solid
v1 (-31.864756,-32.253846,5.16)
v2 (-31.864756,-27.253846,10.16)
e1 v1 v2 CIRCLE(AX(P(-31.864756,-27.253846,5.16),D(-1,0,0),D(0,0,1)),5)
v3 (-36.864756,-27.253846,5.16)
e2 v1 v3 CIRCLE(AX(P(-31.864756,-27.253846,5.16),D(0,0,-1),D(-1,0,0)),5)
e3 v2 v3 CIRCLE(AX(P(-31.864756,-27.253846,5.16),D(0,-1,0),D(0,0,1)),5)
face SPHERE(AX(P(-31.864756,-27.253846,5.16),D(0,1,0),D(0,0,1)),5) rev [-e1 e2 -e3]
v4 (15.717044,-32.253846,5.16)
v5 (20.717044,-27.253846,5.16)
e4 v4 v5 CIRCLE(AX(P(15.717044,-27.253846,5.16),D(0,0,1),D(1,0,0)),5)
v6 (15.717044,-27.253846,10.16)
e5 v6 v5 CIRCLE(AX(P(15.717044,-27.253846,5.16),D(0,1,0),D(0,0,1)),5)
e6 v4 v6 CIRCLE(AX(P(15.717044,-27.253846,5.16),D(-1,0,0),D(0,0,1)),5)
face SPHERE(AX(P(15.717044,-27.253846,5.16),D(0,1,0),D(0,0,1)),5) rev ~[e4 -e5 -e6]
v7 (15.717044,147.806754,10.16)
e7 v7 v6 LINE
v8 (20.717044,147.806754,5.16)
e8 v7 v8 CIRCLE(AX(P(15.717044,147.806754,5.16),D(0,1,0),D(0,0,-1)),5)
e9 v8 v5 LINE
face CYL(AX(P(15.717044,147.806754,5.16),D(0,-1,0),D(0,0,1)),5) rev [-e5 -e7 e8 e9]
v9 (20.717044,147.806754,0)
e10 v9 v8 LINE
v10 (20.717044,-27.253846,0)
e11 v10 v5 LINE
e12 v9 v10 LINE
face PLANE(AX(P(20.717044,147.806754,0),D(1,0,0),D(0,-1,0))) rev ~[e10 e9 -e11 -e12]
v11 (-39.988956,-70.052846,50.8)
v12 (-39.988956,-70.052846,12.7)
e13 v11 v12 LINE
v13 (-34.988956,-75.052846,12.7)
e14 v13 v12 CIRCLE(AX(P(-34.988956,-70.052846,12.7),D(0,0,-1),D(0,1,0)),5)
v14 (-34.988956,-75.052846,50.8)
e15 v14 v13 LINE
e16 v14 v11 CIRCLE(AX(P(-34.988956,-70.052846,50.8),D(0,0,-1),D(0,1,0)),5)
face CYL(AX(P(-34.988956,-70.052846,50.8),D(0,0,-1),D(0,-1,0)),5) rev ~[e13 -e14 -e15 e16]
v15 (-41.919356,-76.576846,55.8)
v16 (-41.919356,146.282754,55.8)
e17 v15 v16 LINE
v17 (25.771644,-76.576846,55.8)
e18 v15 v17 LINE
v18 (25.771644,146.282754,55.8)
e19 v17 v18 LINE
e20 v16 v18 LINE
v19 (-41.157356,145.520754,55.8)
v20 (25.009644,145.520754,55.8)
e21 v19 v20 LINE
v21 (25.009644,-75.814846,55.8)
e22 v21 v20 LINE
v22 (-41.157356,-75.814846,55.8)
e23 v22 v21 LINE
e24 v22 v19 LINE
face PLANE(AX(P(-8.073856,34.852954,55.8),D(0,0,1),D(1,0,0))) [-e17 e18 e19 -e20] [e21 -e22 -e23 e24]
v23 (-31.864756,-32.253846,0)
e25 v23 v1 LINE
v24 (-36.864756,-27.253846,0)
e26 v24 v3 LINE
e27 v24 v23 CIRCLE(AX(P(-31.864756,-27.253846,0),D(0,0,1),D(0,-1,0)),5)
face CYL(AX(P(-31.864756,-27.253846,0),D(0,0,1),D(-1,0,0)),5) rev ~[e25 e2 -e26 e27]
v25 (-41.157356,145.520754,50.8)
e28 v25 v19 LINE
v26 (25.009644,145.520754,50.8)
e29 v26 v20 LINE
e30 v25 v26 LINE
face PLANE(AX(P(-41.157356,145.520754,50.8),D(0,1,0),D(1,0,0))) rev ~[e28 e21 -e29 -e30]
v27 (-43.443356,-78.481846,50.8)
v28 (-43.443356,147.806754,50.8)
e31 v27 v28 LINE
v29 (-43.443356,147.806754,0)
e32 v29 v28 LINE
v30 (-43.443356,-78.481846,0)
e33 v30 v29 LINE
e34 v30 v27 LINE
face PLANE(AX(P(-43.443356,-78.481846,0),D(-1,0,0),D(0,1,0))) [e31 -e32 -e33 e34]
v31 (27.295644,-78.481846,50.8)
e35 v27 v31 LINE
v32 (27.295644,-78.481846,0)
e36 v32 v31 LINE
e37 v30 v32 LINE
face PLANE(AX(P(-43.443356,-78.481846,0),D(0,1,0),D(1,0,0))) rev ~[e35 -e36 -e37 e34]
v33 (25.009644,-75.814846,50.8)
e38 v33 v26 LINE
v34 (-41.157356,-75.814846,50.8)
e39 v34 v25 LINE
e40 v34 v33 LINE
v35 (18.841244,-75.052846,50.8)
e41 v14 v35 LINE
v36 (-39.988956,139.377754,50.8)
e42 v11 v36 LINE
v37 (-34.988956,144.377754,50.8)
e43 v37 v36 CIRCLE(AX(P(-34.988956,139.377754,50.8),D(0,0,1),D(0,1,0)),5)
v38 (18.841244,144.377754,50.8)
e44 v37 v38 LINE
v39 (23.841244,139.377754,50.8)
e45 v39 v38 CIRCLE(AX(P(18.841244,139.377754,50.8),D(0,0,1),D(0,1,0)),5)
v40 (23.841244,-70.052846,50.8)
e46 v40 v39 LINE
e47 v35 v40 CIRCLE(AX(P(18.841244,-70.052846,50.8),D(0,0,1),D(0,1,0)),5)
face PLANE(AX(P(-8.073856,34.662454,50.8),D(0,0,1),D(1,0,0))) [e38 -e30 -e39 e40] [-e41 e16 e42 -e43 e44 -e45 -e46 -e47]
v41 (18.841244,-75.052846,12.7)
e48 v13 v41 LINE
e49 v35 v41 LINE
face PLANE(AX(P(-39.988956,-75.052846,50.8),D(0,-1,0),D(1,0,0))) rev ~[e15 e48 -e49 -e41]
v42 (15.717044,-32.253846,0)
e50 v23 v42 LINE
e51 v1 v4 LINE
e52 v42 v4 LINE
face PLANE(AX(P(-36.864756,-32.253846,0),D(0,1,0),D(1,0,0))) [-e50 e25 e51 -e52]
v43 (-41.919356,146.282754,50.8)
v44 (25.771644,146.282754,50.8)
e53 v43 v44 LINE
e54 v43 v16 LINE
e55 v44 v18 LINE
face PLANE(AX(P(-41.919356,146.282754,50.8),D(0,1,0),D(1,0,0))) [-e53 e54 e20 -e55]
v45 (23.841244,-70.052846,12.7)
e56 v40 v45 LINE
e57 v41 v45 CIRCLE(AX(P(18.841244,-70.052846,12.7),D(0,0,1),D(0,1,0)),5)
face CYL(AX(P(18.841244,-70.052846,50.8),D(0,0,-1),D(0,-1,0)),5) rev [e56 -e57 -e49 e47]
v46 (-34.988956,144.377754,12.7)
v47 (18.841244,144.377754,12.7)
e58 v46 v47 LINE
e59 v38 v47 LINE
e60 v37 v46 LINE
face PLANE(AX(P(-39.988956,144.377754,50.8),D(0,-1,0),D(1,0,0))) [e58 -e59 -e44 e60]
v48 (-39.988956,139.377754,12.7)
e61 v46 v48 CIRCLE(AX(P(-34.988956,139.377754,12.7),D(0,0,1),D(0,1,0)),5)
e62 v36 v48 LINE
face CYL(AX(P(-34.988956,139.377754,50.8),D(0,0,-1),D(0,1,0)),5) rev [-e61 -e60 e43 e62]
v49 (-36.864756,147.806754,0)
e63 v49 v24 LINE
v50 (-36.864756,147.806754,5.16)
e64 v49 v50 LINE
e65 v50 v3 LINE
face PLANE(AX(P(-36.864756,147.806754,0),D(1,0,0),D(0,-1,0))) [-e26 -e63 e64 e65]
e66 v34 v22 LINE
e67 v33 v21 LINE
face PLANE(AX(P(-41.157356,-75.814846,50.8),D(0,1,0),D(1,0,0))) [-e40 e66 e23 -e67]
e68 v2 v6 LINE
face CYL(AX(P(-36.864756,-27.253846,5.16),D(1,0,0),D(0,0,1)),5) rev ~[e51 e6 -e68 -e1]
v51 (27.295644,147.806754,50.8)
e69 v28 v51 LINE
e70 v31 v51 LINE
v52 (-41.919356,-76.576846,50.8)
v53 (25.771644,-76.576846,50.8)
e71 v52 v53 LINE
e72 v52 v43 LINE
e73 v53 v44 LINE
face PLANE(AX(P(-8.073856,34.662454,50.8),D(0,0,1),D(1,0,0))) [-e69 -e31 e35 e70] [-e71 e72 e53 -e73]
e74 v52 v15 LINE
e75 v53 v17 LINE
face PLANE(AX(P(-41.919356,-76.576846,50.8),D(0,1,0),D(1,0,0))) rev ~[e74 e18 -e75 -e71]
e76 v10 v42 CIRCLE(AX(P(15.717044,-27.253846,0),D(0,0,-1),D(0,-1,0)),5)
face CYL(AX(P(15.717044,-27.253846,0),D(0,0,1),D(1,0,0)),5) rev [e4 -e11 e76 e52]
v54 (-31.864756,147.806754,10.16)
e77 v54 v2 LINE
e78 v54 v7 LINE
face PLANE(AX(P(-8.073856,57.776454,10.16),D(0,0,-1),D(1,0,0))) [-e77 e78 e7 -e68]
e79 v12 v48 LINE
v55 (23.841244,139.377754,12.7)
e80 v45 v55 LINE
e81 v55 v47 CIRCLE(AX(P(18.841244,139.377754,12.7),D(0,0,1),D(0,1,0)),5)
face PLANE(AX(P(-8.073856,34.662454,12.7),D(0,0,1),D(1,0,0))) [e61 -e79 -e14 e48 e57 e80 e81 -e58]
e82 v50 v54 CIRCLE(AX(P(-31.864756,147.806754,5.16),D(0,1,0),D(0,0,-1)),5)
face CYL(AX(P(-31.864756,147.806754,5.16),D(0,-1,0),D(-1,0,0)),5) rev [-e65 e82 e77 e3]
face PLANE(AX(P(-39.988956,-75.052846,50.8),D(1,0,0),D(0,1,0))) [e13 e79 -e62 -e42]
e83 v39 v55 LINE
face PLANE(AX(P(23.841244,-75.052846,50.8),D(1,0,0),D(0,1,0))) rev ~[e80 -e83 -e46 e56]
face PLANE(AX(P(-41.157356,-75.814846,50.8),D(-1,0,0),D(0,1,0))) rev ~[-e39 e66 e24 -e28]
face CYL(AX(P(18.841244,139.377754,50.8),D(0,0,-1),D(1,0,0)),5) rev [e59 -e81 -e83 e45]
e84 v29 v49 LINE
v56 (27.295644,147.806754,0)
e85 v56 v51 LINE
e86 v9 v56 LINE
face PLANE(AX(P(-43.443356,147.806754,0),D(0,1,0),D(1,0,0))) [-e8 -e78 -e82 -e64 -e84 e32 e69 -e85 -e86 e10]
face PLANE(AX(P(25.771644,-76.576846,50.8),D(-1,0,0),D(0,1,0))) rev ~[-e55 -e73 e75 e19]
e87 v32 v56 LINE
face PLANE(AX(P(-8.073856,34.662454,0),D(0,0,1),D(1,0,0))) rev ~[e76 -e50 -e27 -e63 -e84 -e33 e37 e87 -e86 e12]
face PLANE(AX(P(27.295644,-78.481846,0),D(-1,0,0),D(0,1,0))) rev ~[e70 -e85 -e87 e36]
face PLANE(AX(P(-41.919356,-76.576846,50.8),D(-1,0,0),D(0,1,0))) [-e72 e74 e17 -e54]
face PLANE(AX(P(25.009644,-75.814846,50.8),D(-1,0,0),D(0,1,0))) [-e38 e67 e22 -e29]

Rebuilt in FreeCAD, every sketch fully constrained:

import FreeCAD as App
import Part
import Sketcher
Q = App.Units.Quantity


def edges_at(feature, points):
    """Names of the edges that pass closest to the given points."""
    edges = feature.Shape.Edges
    near = lambda p: min(range(len(edges)), key=lambda i: edges[i].distToShape(Part.Vertex(*p))[0])
    return sorted({f"Edge{near(p) + 1}" for p in points})

doc = App.newDocument("Part")
body = doc.addObject("PartDesign::Body", "Body")

sketch1 = doc.addObject("Sketcher::SketchObject", "Sketch")
body.addObject(sketch1)
sketch1.AttachmentSupport = (doc.XY_Plane, [""])
sketch1.MapMode = "FlatFace"
sketch1.addGeometry([
    Part.LineSegment(App.Vector(-43, 148, 0), App.Vector(-43, -78, 0)),
    Part.LineSegment(App.Vector(-43, -78, 0), App.Vector(27, -78, 0)),
    Part.LineSegment(App.Vector(27, -78, 0), App.Vector(27, 148, 0)),
    Part.LineSegment(App.Vector(27, 148, 0), App.Vector(-43, 148, 0)),
], False)
sketch1.addConstraint([
    Sketcher.Constraint("Coincident", 0, 2, 1, 1),
    Sketcher.Constraint("Coincident", 1, 2, 2, 1),
    Sketcher.Constraint("Coincident", 2, 2, 3, 1),
    Sketcher.Constraint("Coincident", 3, 2, 0, 1),
    Sketcher.Constraint("Vertical", 0),
    Sketcher.Constraint("Horizontal", 1),
    Sketcher.Constraint("Vertical", 2),
    Sketcher.Constraint("Horizontal", 3),
    Sketcher.Constraint("DistanceX", 1, 1, 1, 2, Q("2.785 in")),
    Sketcher.Constraint("DistanceY", 0, 2, 0, 1, Q("8.909 in")),
    Sketcher.Constraint("DistanceX", 0, 2, -1, 1, Q("43.443356 mm")),
    Sketcher.Constraint("DistanceY", 0, 2, -1, 1, Q("78.481846 mm")),
])
pad1 = doc.addObject("PartDesign::Pad", "Pad")
body.addObject(pad1)
pad1.Profile = sketch1
pad1.Length = Q("2 in")

sketch2 = doc.addObject("Sketcher::SketchObject", "Sketch001")
body.addObject(sketch2)
sketch2.AttachmentSupport = (doc.XY_Plane, [""])
sketch2.MapMode = "FlatFace"
sketch2.AttachmentOffset = App.Placement(App.Vector(0, 0, 2 * 25.4), App.Rotation())
sketch2.addGeometry([
    Part.LineSegment(App.Vector(-40, 144, 0), App.Vector(-40, -75, 0)),
    Part.LineSegment(App.Vector(-40, -75, 0), App.Vector(24, -75, 0)),
    Part.LineSegment(App.Vector(24, -75, 0), App.Vector(24, 144, 0)),
    Part.LineSegment(App.Vector(24, 144, 0), App.Vector(-40, 144, 0)),
], False)
sketch2.addConstraint([
    Sketcher.Constraint("Coincident", 0, 2, 1, 1),
    Sketcher.Constraint("Coincident", 1, 2, 2, 1),
    Sketcher.Constraint("Coincident", 2, 2, 3, 1),
    Sketcher.Constraint("Coincident", 3, 2, 0, 1),
    Sketcher.Constraint("Vertical", 0),
    Sketcher.Constraint("Horizontal", 1),
    Sketcher.Constraint("Vertical", 2),
    Sketcher.Constraint("Horizontal", 3),
    Sketcher.Constraint("DistanceX", 1, 1, 1, 2, Q("2.513 in")),
    Sketcher.Constraint("DistanceY", 0, 2, 0, 1, Q("8.639 in")),
    Sketcher.Constraint("DistanceX", 0, 2, -1, 1, Q("39.988956 mm")),
    Sketcher.Constraint("DistanceY", 0, 2, -1, 1, Q("75.052846 mm")),
])
pocket1 = doc.addObject("PartDesign::Pocket", "Pocket")
body.addObject(pocket1)
pocket1.Profile = sketch2
pocket1.Length = Q("1.5 in")

sketch3 = doc.addObject("Sketcher::SketchObject", "Sketch002")
body.addObject(sketch3)
sketch3.AttachmentSupport = (doc.XY_Plane, [""])
sketch3.MapMode = "FlatFace"
sketch3.addGeometry([
    Part.LineSegment(App.Vector(-37, -32, 0), App.Vector(-37, 148, 0)),
    Part.LineSegment(App.Vector(-37, 148, 0), App.Vector(21, 148, 0)),
    Part.LineSegment(App.Vector(21, 148, 0), App.Vector(21, -32, 0)),
    Part.LineSegment(App.Vector(21, -32, 0), App.Vector(-37, -32, 0)),
], False)
sketch3.addConstraint([
    Sketcher.Constraint("Coincident", 0, 2, 1, 1),
    Sketcher.Constraint("Coincident", 1, 2, 2, 1),
    Sketcher.Constraint("Coincident", 2, 2, 3, 1),
    Sketcher.Constraint("Coincident", 3, 2, 0, 1),
    Sketcher.Constraint("Vertical", 0),
    Sketcher.Constraint("Horizontal", 1),
    Sketcher.Constraint("Vertical", 2),
    Sketcher.Constraint("Horizontal", 3),
    Sketcher.Constraint("DistanceX", 1, 1, 1, 2, Q("2.267 in")),
    Sketcher.Constraint("DistanceY", 0, 1, 0, 2, Q("7.089 in")),
    Sketcher.Constraint("DistanceX", 0, 2, -1, 1, Q("36.864756 mm")),
    Sketcher.Constraint("DistanceY", -1, 1, 0, 2, Q("147.806754 mm")),
])
pocket2 = doc.addObject("PartDesign::Pocket", "Pocket001")
body.addObject(pocket2)
pocket2.Profile = sketch3
pocket2.Length = Q("0.4 in")
pocket2.Reversed = True
doc.recompute()

fillet = doc.addObject("PartDesign::Fillet", "Fillet")
body.addObject(fillet)
fillet.Base = (pocket2, edges_at(pocket2, [
    (-36.865, 57.776, 10.16),
    (20.717, 57.776, 10.16),
    (-8.074, -32.254, 10.16),
    (-36.865, -32.254, 5.08),
    (20.717, -32.254, 5.08),
    (-39.989, -75.053, 31.75),
    (-39.989, 144.378, 31.75),
    (23.841, 144.378, 31.75),
    (23.841, -75.053, 31.75),
]))
fillet.Radius = 5

sketch4 = doc.addObject("Sketcher::SketchObject", "Sketch003")
body.addObject(sketch4)
sketch4.AttachmentSupport = (doc.XY_Plane, [""])
sketch4.MapMode = "FlatFace"
sketch4.AttachmentOffset = App.Placement(App.Vector(0, 0, 2 * 25.4), App.Rotation())
sketch4.addGeometry([
    Part.LineSegment(App.Vector(-42, 146, 0), App.Vector(-42, -77, 0)),
    Part.LineSegment(App.Vector(-42, -77, 0), App.Vector(26, -77, 0)),
    Part.LineSegment(App.Vector(26, -77, 0), App.Vector(26, 146, 0)),
    Part.LineSegment(App.Vector(26, 146, 0), App.Vector(-42, 146, 0)),
    Part.LineSegment(App.Vector(25, -76, 0), App.Vector(-41, -76, 0)),
    Part.LineSegment(App.Vector(-41, -76, 0), App.Vector(-41, 146, 0)),
    Part.LineSegment(App.Vector(-41, 146, 0), App.Vector(25, 146, 0)),
    Part.LineSegment(App.Vector(25, 146, 0), App.Vector(25, -76, 0)),
], False)
sketch4.addConstraint([
    Sketcher.Constraint("Coincident", 0, 2, 1, 1),
    Sketcher.Constraint("Coincident", 1, 2, 2, 1),
    Sketcher.Constraint("Coincident", 2, 2, 3, 1),
    Sketcher.Constraint("Coincident", 3, 2, 0, 1),
    Sketcher.Constraint("Coincident", 4, 2, 5, 1),
    Sketcher.Constraint("Coincident", 5, 2, 6, 1),
    Sketcher.Constraint("Coincident", 6, 2, 7, 1),
    Sketcher.Constraint("Coincident", 7, 2, 4, 1),
    Sketcher.Constraint("Vertical", 0),
    Sketcher.Constraint("Horizontal", 1),
    Sketcher.Constraint("Vertical", 2),
    Sketcher.Constraint("Horizontal", 3),
    Sketcher.Constraint("Horizontal", 4),
    Sketcher.Constraint("Vertical", 5),
    Sketcher.Constraint("Horizontal", 6),
    Sketcher.Constraint("Vertical", 7),
    Sketcher.Constraint("DistanceX", 1, 1, 1, 2, Q("2.665 in")),
    Sketcher.Constraint("DistanceX", 4, 2, 4, 1, Q("2.605 in")),
    Sketcher.Constraint("DistanceY", 0, 2, 0, 1, Q("8.774 in")),
    Sketcher.Constraint("DistanceY", 5, 1, 5, 2, Q("8.714 in")),
    Sketcher.Constraint("DistanceX", 0, 2, 4, 2, Q("0.03 in")),
    Sketcher.Constraint("DistanceY", 0, 2, 4, 2, Q("0.03 in")),
    Sketcher.Constraint("DistanceX", 0, 2, -1, 1, Q("41.919356 mm")),
    Sketcher.Constraint("DistanceY", 0, 2, -1, 1, Q("76.576846 mm")),
])
pad2 = doc.addObject("PartDesign::Pad", "Pad001")
body.addObject(pad2)
pad2.Profile = sketch4
pad2.Length = 5

doc.recompute()
